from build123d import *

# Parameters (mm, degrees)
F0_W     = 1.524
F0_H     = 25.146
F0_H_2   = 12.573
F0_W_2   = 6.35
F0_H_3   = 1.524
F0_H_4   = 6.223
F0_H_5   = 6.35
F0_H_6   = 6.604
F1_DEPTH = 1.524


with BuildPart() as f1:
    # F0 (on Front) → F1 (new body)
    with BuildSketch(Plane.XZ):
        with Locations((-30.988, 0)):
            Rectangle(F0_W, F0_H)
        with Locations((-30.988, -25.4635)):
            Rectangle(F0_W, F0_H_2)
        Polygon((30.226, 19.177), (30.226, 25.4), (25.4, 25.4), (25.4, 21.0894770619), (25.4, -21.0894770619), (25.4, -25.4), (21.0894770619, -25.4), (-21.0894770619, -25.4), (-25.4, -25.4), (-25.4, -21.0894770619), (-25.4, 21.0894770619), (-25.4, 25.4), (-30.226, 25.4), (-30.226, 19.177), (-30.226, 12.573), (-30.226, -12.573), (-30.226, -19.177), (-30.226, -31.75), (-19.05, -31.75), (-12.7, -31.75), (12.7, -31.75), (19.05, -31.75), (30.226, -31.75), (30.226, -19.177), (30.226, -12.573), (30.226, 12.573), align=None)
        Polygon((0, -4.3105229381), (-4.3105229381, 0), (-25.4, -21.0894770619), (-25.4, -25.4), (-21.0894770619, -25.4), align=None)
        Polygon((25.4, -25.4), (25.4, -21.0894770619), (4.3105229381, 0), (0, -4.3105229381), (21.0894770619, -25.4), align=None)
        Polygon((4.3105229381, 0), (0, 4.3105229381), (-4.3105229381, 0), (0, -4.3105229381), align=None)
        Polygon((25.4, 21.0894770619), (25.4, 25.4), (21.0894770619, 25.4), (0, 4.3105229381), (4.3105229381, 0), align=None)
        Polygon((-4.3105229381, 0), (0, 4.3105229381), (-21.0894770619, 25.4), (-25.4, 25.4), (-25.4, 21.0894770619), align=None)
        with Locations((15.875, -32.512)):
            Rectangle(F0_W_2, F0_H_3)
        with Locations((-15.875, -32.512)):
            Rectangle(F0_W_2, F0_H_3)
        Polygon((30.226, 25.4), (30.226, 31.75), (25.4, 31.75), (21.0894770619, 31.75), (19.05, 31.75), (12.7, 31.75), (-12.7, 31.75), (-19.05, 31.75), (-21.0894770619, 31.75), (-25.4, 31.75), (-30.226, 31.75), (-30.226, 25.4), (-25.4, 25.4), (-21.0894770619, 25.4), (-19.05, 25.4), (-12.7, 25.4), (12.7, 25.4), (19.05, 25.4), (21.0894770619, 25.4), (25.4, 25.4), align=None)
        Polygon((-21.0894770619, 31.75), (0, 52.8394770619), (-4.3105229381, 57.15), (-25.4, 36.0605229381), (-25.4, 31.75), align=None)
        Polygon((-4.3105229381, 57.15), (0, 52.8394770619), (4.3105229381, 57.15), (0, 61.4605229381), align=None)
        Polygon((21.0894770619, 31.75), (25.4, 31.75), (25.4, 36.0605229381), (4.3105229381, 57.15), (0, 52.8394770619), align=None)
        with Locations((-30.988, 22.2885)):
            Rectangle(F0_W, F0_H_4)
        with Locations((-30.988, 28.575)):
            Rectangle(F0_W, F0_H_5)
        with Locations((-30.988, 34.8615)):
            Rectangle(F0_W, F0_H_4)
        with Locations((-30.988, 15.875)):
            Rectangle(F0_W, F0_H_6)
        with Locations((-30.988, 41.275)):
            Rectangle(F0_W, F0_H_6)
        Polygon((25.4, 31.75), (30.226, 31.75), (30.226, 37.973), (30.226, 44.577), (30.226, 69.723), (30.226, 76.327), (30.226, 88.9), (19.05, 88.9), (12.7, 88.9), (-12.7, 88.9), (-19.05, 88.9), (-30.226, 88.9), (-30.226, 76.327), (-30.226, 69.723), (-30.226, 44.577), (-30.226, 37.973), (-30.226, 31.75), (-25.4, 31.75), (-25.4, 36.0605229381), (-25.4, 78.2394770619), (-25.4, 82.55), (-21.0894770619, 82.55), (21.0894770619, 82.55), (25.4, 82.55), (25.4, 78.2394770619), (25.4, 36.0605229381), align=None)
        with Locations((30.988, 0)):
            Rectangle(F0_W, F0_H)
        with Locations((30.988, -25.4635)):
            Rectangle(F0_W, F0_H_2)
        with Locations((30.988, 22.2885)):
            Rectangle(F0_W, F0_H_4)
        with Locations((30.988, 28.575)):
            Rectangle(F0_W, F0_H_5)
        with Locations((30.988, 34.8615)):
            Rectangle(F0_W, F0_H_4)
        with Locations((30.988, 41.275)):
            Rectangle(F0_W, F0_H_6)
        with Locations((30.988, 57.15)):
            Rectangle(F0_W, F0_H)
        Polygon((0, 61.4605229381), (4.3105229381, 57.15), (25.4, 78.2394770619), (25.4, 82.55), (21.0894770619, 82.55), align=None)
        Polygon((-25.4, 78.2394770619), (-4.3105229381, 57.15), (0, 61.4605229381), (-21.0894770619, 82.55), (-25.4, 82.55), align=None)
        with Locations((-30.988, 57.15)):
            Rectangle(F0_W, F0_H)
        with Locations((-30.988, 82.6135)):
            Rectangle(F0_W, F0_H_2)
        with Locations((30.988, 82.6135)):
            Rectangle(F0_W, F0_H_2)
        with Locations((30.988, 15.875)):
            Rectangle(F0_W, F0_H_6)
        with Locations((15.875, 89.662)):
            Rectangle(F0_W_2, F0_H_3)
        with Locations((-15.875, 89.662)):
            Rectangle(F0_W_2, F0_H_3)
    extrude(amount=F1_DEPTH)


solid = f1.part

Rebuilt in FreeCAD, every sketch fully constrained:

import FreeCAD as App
import Part
import Sketcher
Q = App.Units.Quantity


def add_polygon(sketch, points):
    """Adds a closed chain of lines whose ends are joined by coincident constraints."""
    first, n = sketch.GeometryCount, len(points)
    for a, b in zip(points, points[1:] + points[:1]):
        sketch.addGeometry(Part.LineSegment(App.Vector(*a, 0), App.Vector(*b, 0)), False)
    for i in range(n):
        sketch.addConstraint(Sketcher.Constraint("Coincident", first + i, 2, first + (i + 1) % n, 1))

doc = App.newDocument("Part")
body = doc.addObject("PartDesign::Body", "Body")

# Sketch on XZ plane
sketch1 = body.newObject("Sketcher::SketchObject", "Sketch")
sketch1.AttachmentSupport = (doc.getObject("XZ_Plane"), [""])
sketch1.MapMode = "FlatFace"
add_polygon(sketch1, [(-31.75, -12.573), (-30.226, -12.573), (-30.226, -19.177), (-31.75, -19.177), (-31.75, -31.75), (-19.05, -31.75), (-19.05, -33.274), (-12.7, -33.274), (-12.7, -31.75), (12.7, -31.75), (12.7, -33.274), (19.05, -33.274), (19.05, -31.75), (31.75, -31.75), (31.75, -19.177), (30.226, -19.177), (30.226, -12.573), (31.75, -12.573), (31.75, 69.723), (30.226, 69.723), (30.226, 76.327), (31.75, 76.327), (31.75, 88.9), (19.05, 88.9), (19.05, 90.424), (12.7, 90.424), (12.7, 88.9), (-12.7, 88.9), (-12.7, 90.424), (-19.05, 90.424), (-19.05, 88.9), (-31.75, 88.9), (-31.75, 76.327), (-30.226, 76.327), (-30.226, 69.723), (-31.75, 69.723)])  # lines 0-35
add_polygon(sketch1, [(25.4, -21.089477), (4.310523, 0), (25.4, 21.089477)])  # lines 36-38
add_polygon(sketch1, [(-25.4, -21.089477), (-25.4, 21.089477), (-4.310523, 0)])  # lines 39-41
add_polygon(sketch1, [(25.4, 36.060523), (4.310523, 57.15), (25.4, 78.239477)])  # lines 42-44
add_polygon(sketch1, [(-25.4, 36.060523), (-25.4, 78.239477), (-4.310523, 57.15)])  # lines 45-47
add_polygon(sketch1, [(-21.089477, 82.55), (21.089477, 82.55), (0, 61.460523)])  # lines 48-50
add_polygon(sketch1, [(21.089477, 31.75), (-21.089477, 31.75), (0, 52.839477)])  # lines 51-53
add_polygon(sketch1, [(21.089477, 25.4), (0, 4.310523), (-21.089477, 25.4)])  # lines 54-56
add_polygon(sketch1, [(-21.089477, -25.4), (0, -4.310523), (21.089477, -25.4)])  # lines 57-59
sketch1.addConstraint(Sketcher.Constraint("Horizontal", 0))
sketch1.addConstraint(Sketcher.Constraint("Vertical", 1))
sketch1.addConstraint(Sketcher.Constraint("Horizontal", 2))
sketch1.addConstraint(Sketcher.Constraint("Vertical", 3))
sketch1.addConstraint(Sketcher.Constraint("Horizontal", 4))
sketch1.addConstraint(Sketcher.Constraint("Vertical", 5))
sketch1.addConstraint(Sketcher.Constraint("Horizontal", 6))
sketch1.addConstraint(Sketcher.Constraint("Vertical", 7))
sketch1.addConstraint(Sketcher.Constraint("Horizontal", 8))
sketch1.addConstraint(Sketcher.Constraint("Vertical", 9))
sketch1.addConstraint(Sketcher.Constraint("Horizontal", 10))
sketch1.addConstraint(Sketcher.Constraint("Vertical", 11))
sketch1.addConstraint(Sketcher.Constraint("Horizontal", 12))
sketch1.addConstraint(Sketcher.Constraint("Vertical", 13))
sketch1.addConstraint(Sketcher.Constraint("Horizontal", 14))
sketch1.addConstraint(Sketcher.Constraint("Vertical", 15))
sketch1.addConstraint(Sketcher.Constraint("Horizontal", 16))
sketch1.addConstraint(Sketcher.Constraint("Vertical", 17))
sketch1.addConstraint(Sketcher.Constraint("Horizontal", 18))
sketch1.addConstraint(Sketcher.Constraint("Vertical", 19))
sketch1.addConstraint(Sketcher.Constraint("Horizontal", 20))
sketch1.addConstraint(Sketcher.Constraint("Vertical", 21))
sketch1.addConstraint(Sketcher.Constraint("Horizontal", 22))
sketch1.addConstraint(Sketcher.Constraint("Vertical", 23))
sketch1.addConstraint(Sketcher.Constraint("Horizontal", 24))
sketch1.addConstraint(Sketcher.Constraint("Vertical", 25))
sketch1.addConstraint(Sketcher.Constraint("Horizontal", 26))
sketch1.addConstraint(Sketcher.Constraint("Vertical", 27))
sketch1.addConstraint(Sketcher.Constraint("Horizontal", 28))
sketch1.addConstraint(Sketcher.Constraint("Vertical", 29))
sketch1.addConstraint(Sketcher.Constraint("Horizontal", 30))
sketch1.addConstraint(Sketcher.Constraint("Vertical", 31))
sketch1.addConstraint(Sketcher.Constraint("Horizontal", 32))
sketch1.addConstraint(Sketcher.Constraint("Vertical", 33))
sketch1.addConstraint(Sketcher.Constraint("Horizontal", 34))
sketch1.addConstraint(Sketcher.Constraint("Vertical", 35))
sketch1.addConstraint(Sketcher.Constraint("Vertical", 38))
sketch1.addConstraint(Sketcher.Constraint("Vertical", 39))
sketch1.addConstraint(Sketcher.Constraint("Vertical", 44))
sketch1.addConstraint(Sketcher.Constraint("Vertical", 45))
sketch1.addConstraint(Sketcher.Constraint("Horizontal", 48))
sketch1.addConstraint(Sketcher.Constraint("Horizontal", 51))
sketch1.addConstraint(Sketcher.Constraint("Horizontal", 56))
sketch1.addConstraint(Sketcher.Constraint("Horizontal", 59))
sketch1.addConstraint(Sketcher.Constraint("Symmetric", 38, 2, 39, 2, -1, 1))
sketch1.addConstraint(Sketcher.Constraint("Symmetric", 36, 2, 40, 2, -1, 1))
sketch1.addConstraint(Sketcher.Constraint("Symmetric", 54, 2, 57, 2, -1, 1))
sketch1.addConstraint(Sketcher.Constraint("Symmetric", 55, 2, 58, 2, -1, 1))
sketch1.addConstraint(Sketcher.Constraint("Symmetric", 6, 2, 9, 2, -2))
sketch1.addConstraint(Sketcher.Constraint("Symmetric", 4, 2, 11, 2, -2))
sketch1.addConstraint(Sketcher.Constraint("Symmetric", 2, 2, 13, 2, -2))
sketch1.addConstraint(Sketcher.Constraint("Symmetric", 0, 2, 15, 2, -2))
sketch1.addConstraint(Sketcher.Constraint("Symmetric", 24, 2, 27, 2, -2))
sketch1.addConstraint(Sketcher.Constraint("Symmetric", 22, 2, 29, 2, -2))
sketch1.addConstraint(Sketcher.Constraint("Symmetric", 20, 2, 31, 2, -2))
sketch1.addConstraint(Sketcher.Constraint("Symmetric", 18, 2, 33, 2, -2))
sketch1.addConstraint(Sketcher.Constraint("Symmetric", 43, 2, 45, 2, -2))
sketch1.addConstraint(Sketcher.Constraint("Symmetric", 42, 2, 46, 2, -2))
sketch1.addConstraint(Sketcher.Constraint("PointOnObject", 36, 2, -1))
sketch1.addConstraint(Sketcher.Constraint("PointOnObject", 49, 2, -2))
sketch1.addConstraint(Sketcher.Constraint("PointOnObject", 52, 2, -2))
sketch1.addConstraint(Sketcher.Constraint("PointOnObject", 54, 2, -2))
sketch1.addConstraint(Sketcher.Constraint("Perpendicular", 36, 37))
sketch1.addConstraint(Sketcher.Constraint("Perpendicular", 40, 41))
sketch1.addConstraint(Sketcher.Constraint("Perpendicular", 41, 42))
sketch1.addConstraint(Sketcher.Constraint("Perpendicular", 42, 43))
sketch1.addConstraint(Sketcher.Constraint("Perpendicular", 43, 46))
sketch1.addConstraint(Sketcher.Constraint("Perpendicular", 46, 47))
sketch1.addConstraint(Sketcher.Constraint("Parallel", 47, 49))
sketch1.addConstraint(Sketcher.Constraint("Perpendicular", 49, 50))
sketch1.addConstraint(Sketcher.Constraint("Perpendicular", 50, 52))
sketch1.addConstraint(Sketcher.Constraint("Perpendicular", 52, 53))
sketch1.addConstraint(Sketcher.Constraint("Perpendicular", 53, 54))
sketch1.addConstraint(Sketcher.Constraint("Perpendicular", 54, 55))
sketch1.addConstraint(Sketcher.Constraint("Perpendicular", 55, 57))
sketch1.addConstraint(Sketcher.Constraint("Horizontal", 4, 2, 7, 2))
sketch1.addConstraint(Sketcher.Constraint("Horizontal", 22, 2, 25, 2))
sketch1.addConstraint(Sketcher.Constraint("Vertical", 13, 2, 16, 2))
sketch1.addConstraint(Sketcher.Constraint("Vertical", 15, 2, 18, 2))
sketch1.addConstraint(Sketcher.Constraint("Vertical", 17, 2, 20, 2))
sketch1.addConstraint(Sketcher.Constraint("Vertical", 11, 2, 22, 2))
sketch1.addConstraint(Sketcher.Constraint("Vertical", 9, 2, 24, 2))
sketch1.addConstraint(Sketcher.Constraint("Vertical", 31, 2, 34, 2))
sketch1.addConstraint(Sketcher.Constraint("Vertical", 36, 2, 42, 2))
sketch1.addConstraint(Sketcher.Constraint("Vertical", 38, 2, 43, 2))
sketch1.addConstraint(Sketcher.Constraint("Vertical", 50, 2, 51, 2))
sketch1.addConstraint(Sketcher.Constraint("Vertical", 51, 2, 55, 2))
sketch1.addConstraint(Sketcher.Constraint("Equal", 34, 5))
sketch1.addConstraint(Sketcher.Constraint("Equal", 15, 19))
sketch1.addConstraint(Sketcher.Constraint("Equal", 13, 21))
sketch1.addConstraint(Sketcher.Constraint("Equal", 11, 23))
sketch1.addConstraint(Sketcher.Constraint("Equal", 59, 38))
sketch1.addConstraint(Sketcher.Constraint("DistanceX", 8, 1, 8, 2, Q("1 in")))
sketch1.addConstraint(Sketcher.Constraint("DistanceX", 4, 1, 4, 2, Q("0.5 in")))
sketch1.addConstraint(Sketcher.Constraint("DistanceX", -1, 1, 37, 2, Q("1 in")))
sketch1.addConstraint(Sketcher.Constraint("DistanceY", -1, 1, 55, 2, Q("1 in")))
sketch1.addConstraint(Sketcher.Constraint("DistanceY", 51, 2, 46, 2, Q("1 in")))
sketch1.addConstraint(Sketcher.Constraint("DistanceX", 0, 1, 0, 2, Q("0.06 in")))
sketch1.addConstraint(Sketcher.Constraint("DistanceX", 6, 1, 6, 2, Q("0.25 in")))
sketch1.addConstraint(Sketcher.Constraint("DistanceY", 1, 2, 1, 1, Q("0.26 in")))
sketch1.addConstraint(Sketcher.Constraint("DistanceY", 17, 1, 17, 2, Q("3.24 in")))
sketch1.addConstraint(Sketcher.Constraint("DistanceY", -1, 1, 21, 2, Q("3.5 in")))
sketch1.addConstraint(Sketcher.Constraint("DistanceY", 3, 2, 3, 1, Q("0.495 in")))
sketch1.addConstraint(Sketcher.Constraint("DistanceY", -1, 1, 42, 2, Q("2.25 in")))
sketch1.addConstraint(Sketcher.Constraint("DistanceY", -1, 1, 48, 2, Q("3.25 in")))
sketch1.addConstraint(Sketcher.Constraint("DistanceX", 48, 1, 48, 2, 42.178954))
pad1 = body.newObject("PartDesign::Pad", "Pad")
pad1.Profile = sketch1
pad1.Length = Q("0.06 in")

doc.recompute()
